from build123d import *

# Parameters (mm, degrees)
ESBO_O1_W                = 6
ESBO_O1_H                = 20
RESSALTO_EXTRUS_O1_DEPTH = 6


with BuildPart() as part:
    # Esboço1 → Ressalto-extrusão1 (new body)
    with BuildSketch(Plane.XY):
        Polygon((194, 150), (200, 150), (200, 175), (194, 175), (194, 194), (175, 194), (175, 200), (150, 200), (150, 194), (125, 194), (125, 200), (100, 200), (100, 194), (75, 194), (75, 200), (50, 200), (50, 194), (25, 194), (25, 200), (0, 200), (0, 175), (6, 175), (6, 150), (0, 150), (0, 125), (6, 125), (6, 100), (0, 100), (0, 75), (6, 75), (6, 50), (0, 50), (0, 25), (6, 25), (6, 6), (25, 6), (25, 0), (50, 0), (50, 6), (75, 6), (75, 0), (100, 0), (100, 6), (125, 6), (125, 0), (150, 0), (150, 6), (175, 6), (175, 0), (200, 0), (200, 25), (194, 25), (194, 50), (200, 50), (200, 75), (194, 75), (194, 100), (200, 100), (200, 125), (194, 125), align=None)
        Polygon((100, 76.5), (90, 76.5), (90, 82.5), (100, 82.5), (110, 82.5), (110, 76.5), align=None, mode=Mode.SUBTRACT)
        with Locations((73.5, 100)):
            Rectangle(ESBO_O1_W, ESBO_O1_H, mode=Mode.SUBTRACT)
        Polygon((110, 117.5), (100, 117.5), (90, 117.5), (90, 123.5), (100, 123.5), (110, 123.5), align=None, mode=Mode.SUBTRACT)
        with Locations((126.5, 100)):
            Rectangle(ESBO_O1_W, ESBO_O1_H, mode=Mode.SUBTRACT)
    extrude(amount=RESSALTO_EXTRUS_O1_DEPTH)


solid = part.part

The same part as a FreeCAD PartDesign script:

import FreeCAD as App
import Part
import Sketcher
Q = App.Units.Quantity

doc = App.newDocument("Part")
body = doc.addObject("PartDesign::Body", "Body")

sketch1 = body.newObject("Sketcher::SketchObject", "Sketch")
sketch1.AttachmentSupport = (doc.getObject("XY_Plane"), [""])
sketch1.MapMode = "FlatFace"
sketch1.addGeometry([
    Part.LineSegment(App.Vector(194, 150, 0), App.Vector(200, 150, 0)),
    Part.LineSegment(App.Vector(200, 150, 0), App.Vector(200, 175, 0)),
    Part.LineSegment(App.Vector(200, 175, 0), App.Vector(194, 175, 0)),
    Part.LineSegment(App.Vector(194, 175, 0), App.Vector(194, 194, 0)),
    Part.LineSegment(App.Vector(194, 194, 0), App.Vector(175, 194, 0)),
    Part.LineSegment(App.Vector(175, 194, 0), App.Vector(175, 200, 0)),
    Part.LineSegment(App.Vector(175, 200, 0), App.Vector(150, 200, 0)),
    Part.LineSegment(App.Vector(150, 200, 0), App.Vector(150, 194, 0)),
    Part.LineSegment(App.Vector(150, 194, 0), App.Vector(125, 194, 0)),
    Part.LineSegment(App.Vector(125, 194, 0), App.Vector(125, 200, 0)),
    Part.LineSegment(App.Vector(125, 200, 0), App.Vector(100, 200, 0)),
    Part.LineSegment(App.Vector(100, 200, 0), App.Vector(100, 194, 0)),
    Part.LineSegment(App.Vector(100, 194, 0), App.Vector(75, 194, 0)),
    Part.LineSegment(App.Vector(75, 194, 0), App.Vector(75, 200, 0)),
    Part.LineSegment(App.Vector(75, 200, 0), App.Vector(50, 200, 0)),
    Part.LineSegment(App.Vector(50, 200, 0), App.Vector(50, 194, 0)),
    Part.LineSegment(App.Vector(50, 194, 0), App.Vector(25, 194, 0)),
    Part.LineSegment(App.Vector(25, 194, 0), App.Vector(25, 200, 0)),
    Part.LineSegment(App.Vector(25, 200, 0), App.Vector(0, 200, 0)),
    Part.LineSegment(App.Vector(0, 200, 0), App.Vector(0, 175, 0)),
    Part.LineSegment(App.Vector(0, 175, 0), App.Vector(6, 175, 0)),
    Part.LineSegment(App.Vector(6, 175, 0), App.Vector(6, 150, 0)),
    Part.LineSegment(App.Vector(6, 150, 0), App.Vector(0, 150, 0)),
    Part.LineSegment(App.Vector(0, 150, 0), App.Vector(0, 125, 0)),
    Part.LineSegment(App.Vector(0, 125, 0), App.Vector(6, 125, 0)),
    Part.LineSegment(App.Vector(6, 125, 0), App.Vector(6, 100, 0)),
    Part.LineSegment(App.Vector(6, 100, 0), App.Vector(0, 100, 0)),
    Part.LineSegment(App.Vector(0, 100, 0), App.Vector(0, 75, 0)),
    Part.LineSegment(App.Vector(0, 75, 0), App.Vector(6, 75, 0)),
    Part.LineSegment(App.Vector(6, 75, 0), App.Vector(6, 50, 0)),
    Part.LineSegment(App.Vector(6, 50, 0), App.Vector(0, 50, 0)),
    Part.LineSegment(App.Vector(0, 50, 0), App.Vector(0, 25, 0)),
    Part.LineSegment(App.Vector(0, 25, 0), App.Vector(6, 25, 0)),
    Part.LineSegment(App.Vector(6, 25, 0), App.Vector(6, 6, 0)),
    Part.LineSegment(App.Vector(6, 6, 0), App.Vector(25, 6, 0)),
    Part.LineSegment(App.Vector(25, 6, 0), App.Vector(25, 0, 0)),
    Part.LineSegment(App.Vector(25, 0, 0), App.Vector(50, 0, 0)),
    Part.LineSegment(App.Vector(50, 0, 0), App.Vector(50, 6, 0)),
    Part.LineSegment(App.Vector(50, 6, 0), App.Vector(75, 6, 0)),
    Part.LineSegment(App.Vector(75, 6, 0), App.Vector(75, 0, 0)),
    Part.LineSegment(App.Vector(75, 0, 0), App.Vector(100, 0, 0)),
    Part.LineSegment(App.Vector(100, 0, 0), App.Vector(100, 6, 0)),
    Part.LineSegment(App.Vector(100, 6, 0), App.Vector(125, 6, 0)),
    Part.LineSegment(App.Vector(125, 6, 0), App.Vector(125, 0, 0)),
    Part.LineSegment(App.Vector(125, 0, 0), App.Vector(150, 0, 0)),
    Part.LineSegment(App.Vector(150, 0, 0), App.Vector(150, 6, 0)),
    Part.LineSegment(App.Vector(150, 6, 0), App.Vector(175, 6, 0)),
    Part.LineSegment(App.Vector(175, 6, 0), App.Vector(175, 0, 0)),
    Part.LineSegment(App.Vector(175, 0, 0), App.Vector(200, 0, 0)),
    Part.LineSegment(App.Vector(200, 0, 0), App.Vector(200, 25, 0)),
    Part.LineSegment(App.Vector(200, 25, 0), App.Vector(194, 25, 0)),
    Part.LineSegment(App.Vector(194, 25, 0), App.Vector(194, 50, 0)),
    Part.LineSegment(App.Vector(194, 50, 0), App.Vector(200, 50, 0)),
    Part.LineSegment(App.Vector(200, 50, 0), App.Vector(200, 75, 0)),
    Part.LineSegment(App.Vector(200, 75, 0), App.Vector(194, 75, 0)),
    Part.LineSegment(App.Vector(194, 75, 0), App.Vector(194, 100, 0)),
    Part.LineSegment(App.Vector(194, 100, 0), App.Vector(200, 100, 0)),
    Part.LineSegment(App.Vector(200, 100, 0), App.Vector(200, 125, 0)),
    Part.LineSegment(App.Vector(200, 125, 0), App.Vector(194, 125, 0)),
    Part.LineSegment(App.Vector(194, 125, 0), App.Vector(194, 150, 0)),
    Part.LineSegment(App.Vector(110, 76, 0), App.Vector(90, 76, 0)),
    Part.LineSegment(App.Vector(90, 76, 0), App.Vector(90, 82, 0)),
    Part.LineSegment(App.Vector(90, 82, 0), App.Vector(110, 82, 0)),
    Part.LineSegment(App.Vector(110, 82, 0), App.Vector(110, 76, 0)),
    Part.LineSegment(App.Vector(76, 90, 0), App.Vector(70, 90, 0)),
    Part.LineSegment(App.Vector(70, 90, 0), App.Vector(70, 110, 0)),
    Part.LineSegment(App.Vector(70, 110, 0), App.Vector(76, 110, 0)),
    Part.LineSegment(App.Vector(76, 110, 0), App.Vector(76, 90, 0)),
    Part.LineSegment(App.Vector(130, 90, 0), App.Vector(124, 90, 0)),
    Part.LineSegment(App.Vector(124, 90, 0), App.Vector(124, 110, 0)),
    Part.LineSegment(App.Vector(124, 110, 0), App.Vector(130, 110, 0)),
    Part.LineSegment(App.Vector(130, 110, 0), App.Vector(130, 90, 0)),
    Part.LineSegment(App.Vector(110, 124, 0), App.Vector(110, 118, 0)),
    Part.LineSegment(App.Vector(110, 118, 0), App.Vector(90, 118, 0)),
    Part.LineSegment(App.Vector(90, 118, 0), App.Vector(90, 124, 0)),
    Part.LineSegment(App.Vector(90, 124, 0), App.Vector(110, 124, 0)),
], False)
sketch1.addConstraint([
    Sketcher.Constraint("Coincident", 0, 2, 1, 1),
    Sketcher.Constraint("Coincident", 1, 2, 2, 1),
    Sketcher.Constraint("Coincident", 2, 2, 3, 1),
    Sketcher.Constraint("Coincident", 3, 2, 4, 1),
    Sketcher.Constraint("Coincident", 4, 2, 5, 1),
    Sketcher.Constraint("Coincident", 5, 2, 6, 1),
    Sketcher.Constraint("Coincident", 6, 2, 7, 1),
    Sketcher.Constraint("Coincident", 7, 2, 8, 1),
    Sketcher.Constraint("Coincident", 8, 2, 9, 1),
    Sketcher.Constraint("Coincident", 9, 2, 10, 1),
    Sketcher.Constraint("Coincident", 10, 2, 11, 1),
    Sketcher.Constraint("Coincident", 11, 2, 12, 1),
    Sketcher.Constraint("Coincident", 12, 2, 13, 1),
    Sketcher.Constraint("Coincident", 13, 2, 14, 1),
    Sketcher.Constraint("Coincident", 14, 2, 15, 1),
    Sketcher.Constraint("Coincident", 15, 2, 16, 1),
    Sketcher.Constraint("Coincident", 16, 2, 17, 1),
    Sketcher.Constraint("Coincident", 17, 2, 18, 1),
    Sketcher.Constraint("Coincident", 18, 2, 19, 1),
    Sketcher.Constraint("Coincident", 19, 2, 20, 1),
    Sketcher.Constraint("Coincident", 20, 2, 21, 1),
    Sketcher.Constraint("Coincident", 21, 2, 22, 1),
    Sketcher.Constraint("Coincident", 22, 2, 23, 1),
    Sketcher.Constraint("Coincident", 23, 2, 24, 1),
    Sketcher.Constraint("Coincident", 24, 2, 25, 1),
    Sketcher.Constraint("Coincident", 25, 2, 26, 1),
    Sketcher.Constraint("Coincident", 26, 2, 27, 1),
    Sketcher.Constraint("Coincident", 27, 2, 28, 1),
    Sketcher.Constraint("Coincident", 28, 2, 29, 1),
    Sketcher.Constraint("Coincident", 29, 2, 30, 1),
    Sketcher.Constraint("Coincident", 30, 2, 31, 1),
    Sketcher.Constraint("Coincident", 31, 2, 32, 1),
    Sketcher.Constraint("Coincident", 32, 2, 33, 1),
    Sketcher.Constraint("Coincident", 33, 2, 34, 1),
    Sketcher.Constraint("Coincident", 34, 2, 35, 1),
    Sketcher.Constraint("Coincident", 35, 2, 36, 1),
    Sketcher.Constraint("Coincident", 36, 2, 37, 1),
    Sketcher.Constraint("Coincident", 37, 2, 38, 1),
    Sketcher.Constraint("Coincident", 38, 2, 39, 1),
    Sketcher.Constraint("Coincident", 39, 2, 40, 1),
    Sketcher.Constraint("Coincident", 40, 2, 41, 1),
    Sketcher.Constraint("Coincident", 41, 2, 42, 1),
    Sketcher.Constraint("Coincident", 42, 2, 43, 1),
    Sketcher.Constraint("Coincident", 43, 2, 44, 1),
    Sketcher.Constraint("Coincident", 44, 2, 45, 1),
    Sketcher.Constraint("Coincident", 45, 2, 46, 1),
    Sketcher.Constraint("Coincident", 46, 2, 47, 1),
    Sketcher.Constraint("Coincident", 47, 2, 48, 1),
    Sketcher.Constraint("Coincident", 48, 2, 49, 1),
    Sketcher.Constraint("Coincident", 49, 2, 50, 1),
    Sketcher.Constraint("Coincident", 50, 2, 51, 1),
    Sketcher.Constraint("Coincident", 51, 2, 52, 1),
    Sketcher.Constraint("Coincident", 52, 2, 53, 1),
    Sketcher.Constraint("Coincident", 53, 2, 54, 1),
    Sketcher.Constraint("Coincident", 54, 2, 55, 1),
    Sketcher.Constraint("Coincident", 55, 2, 56, 1),
    Sketcher.Constraint("Coincident", 56, 2, 57, 1),
    Sketcher.Constraint("Coincident", 57, 2, 58, 1),
    Sketcher.Constraint("Coincident", 58, 2, 59, 1),
    Sketcher.Constraint("Coincident", 59, 2, 0, 1),
    Sketcher.Constraint("Coincident", 60, 2, 61, 1),
    Sketcher.Constraint("Coincident", 61, 2, 62, 1),
    Sketcher.Constraint("Coincident", 62, 2, 63, 1),
    Sketcher.Constraint("Coincident", 63, 2, 60, 1),
    Sketcher.Constraint("Coincident", 64, 2, 65, 1),
    Sketcher.Constraint("Coincident", 65, 2, 66, 1),
    Sketcher.Constraint("Coincident", 66, 2, 67, 1),
    Sketcher.Constraint("Coincident", 67, 2, 64, 1),
    Sketcher.Constraint("Coincident", 68, 2, 69, 1),
    Sketcher.Constraint("Coincident", 69, 2, 70, 1),
    Sketcher.Constraint("Coincident", 70, 2, 71, 1),
    Sketcher.Constraint("Coincident", 71, 2, 68, 1),
    Sketcher.Constraint("Coincident", 72, 2, 73, 1),
    Sketcher.Constraint("Coincident", 73, 2, 74, 1),
    Sketcher.Constraint("Coincident", 74, 2, 75, 1),
    Sketcher.Constraint("Coincident", 75, 2, 72, 1),
    Sketcher.Constraint("Horizontal", 0),
    Sketcher.Constraint("Vertical", 1),
    Sketcher.Constraint("Horizontal", 2),
    Sketcher.Constraint("Vertical", 3),
    Sketcher.Constraint("Horizontal", 4),
    Sketcher.Constraint("Vertical", 5),
    Sketcher.Constraint("Horizontal", 6),
    Sketcher.Constraint("Vertical", 7),
    Sketcher.Constraint("Horizontal", 8),
    Sketcher.Constraint("Vertical", 9),
    Sketcher.Constraint("Horizontal", 10),
    Sketcher.Constraint("Vertical", 11),
    Sketcher.Constraint("Horizontal", 12),
    Sketcher.Constraint("Vertical", 13),
    Sketcher.Constraint("Horizontal", 14),
    Sketcher.Constraint("Vertical", 15),
    Sketcher.Constraint("Horizontal", 16),
    Sketcher.Constraint("Vertical", 17),
    Sketcher.Constraint("Horizontal", 18),
    Sketcher.Constraint("Vertical", 19),
    Sketcher.Constraint("Horizontal", 20),
    Sketcher.Constraint("Vertical", 21),
    Sketcher.Constraint("Horizontal", 22),
    Sketcher.Constraint("Vertical", 23),
    Sketcher.Constraint("Horizontal", 24),
    Sketcher.Constraint("Vertical", 25),
    Sketcher.Constraint("Horizontal", 26),
    Sketcher.Constraint("Vertical", 27),
    Sketcher.Constraint("Horizontal", 28),
    Sketcher.Constraint("Vertical", 29),
    Sketcher.Constraint("Horizontal", 30),
    Sketcher.Constraint("Vertical", 31),
    Sketcher.Constraint("Horizontal", 32),
    Sketcher.Constraint("Vertical", 33),
    Sketcher.Constraint("Horizontal", 34),
    Sketcher.Constraint("Vertical", 35),
    Sketcher.Constraint("Horizontal", 36),
    Sketcher.Constraint("Vertical", 37),
    Sketcher.Constraint("Horizontal", 38),
    Sketcher.Constraint("Vertical", 39),
    Sketcher.Constraint("Horizontal", 40),
    Sketcher.Constraint("Vertical", 41),
    Sketcher.Constraint("Horizontal", 42),
    Sketcher.Constraint("Vertical", 43),
    Sketcher.Constraint("Horizontal", 44),
    Sketcher.Constraint("Vertical", 45),
    Sketcher.Constraint("Horizontal", 46),
    Sketcher.Constraint("Vertical", 47),
    Sketcher.Constraint("Horizontal", 48),
    Sketcher.Constraint("Vertical", 49),
    Sketcher.Constraint("Horizontal", 50),
    Sketcher.Constraint("Vertical", 51),
    Sketcher.Constraint("Horizontal", 52),
    Sketcher.Constraint("Vertical", 53),
    Sketcher.Constraint("Horizontal", 54),
    Sketcher.Constraint("Vertical", 55),
    Sketcher.Constraint("Horizontal", 56),
    Sketcher.Constraint("Vertical", 57),
    Sketcher.Constraint("Horizontal", 58),
    Sketcher.Constraint("Vertical", 59),
    Sketcher.Constraint("Horizontal", 60),
    Sketcher.Constraint("Vertical", 61),
    Sketcher.Constraint("Horizontal", 62),
    Sketcher.Constraint("Vertical", 63),
    Sketcher.Constraint("Horizontal", 64),
    Sketcher.Constraint("Vertical", 65),
    Sketcher.Constraint("Horizontal", 66),
    Sketcher.Constraint("Vertical", 67),
    Sketcher.Constraint("Horizontal", 68),
    Sketcher.Constraint("Vertical", 69),
    Sketcher.Constraint("Horizontal", 70),
    Sketcher.Constraint("Vertical", 71),
    Sketcher.Constraint("Vertical", 72),
    Sketcher.Constraint("Horizontal", 73),
    Sketcher.Constraint("Vertical", 74),
    Sketcher.Constraint("Horizontal", 75),
    Sketcher.Constraint("PointOnObject", 18, 2, -2),
    Sketcher.Constraint("PointOnObject", 22, 2, -2),
    Sketcher.Constraint("PointOnObject", 26, 2, -2),
    Sketcher.Constraint("PointOnObject", 30, 2, -2),
    Sketcher.Constraint("PointOnObject", 35, 2, -1),
    Sketcher.Constraint("PointOnObject", 39, 2, -1),
    Sketcher.Constraint("PointOnObject", 43, 2, -1),
    Sketcher.Constraint("PointOnObject", 47, 2, -1),
    Sketcher.Constraint("Horizontal", 4, 2, 7, 2),
    Sketcher.Constraint("Horizontal", 6, 2, 9, 2),
    Sketcher.Constraint("Horizontal", 8, 2, 11, 2),
    Sketcher.Constraint("Horizontal", 10, 2, 13, 2),
    Sketcher.Constraint("Horizontal", 12, 2, 15, 2),
    Sketcher.Constraint("Horizontal", 14, 2, 17, 2),
    Sketcher.Constraint("Horizontal", 2, 2, 19, 2),
    Sketcher.Constraint("Horizontal", 0, 2, 21, 2),
    Sketcher.Constraint("Horizontal", 34, 2, 37, 2),
    Sketcher.Constraint("Horizontal", 38, 2, 41, 2),
    Sketcher.Constraint("Horizontal", 42, 2, 45, 2),
    Sketcher.Constraint("Horizontal", 32, 2, 49, 2),
    Sketcher.Constraint("Horizontal", 30, 2, 51, 2),
    Sketcher.Constraint("Horizontal", 28, 2, 53, 2),
    Sketcher.Constraint("Horizontal", 26, 2, 55, 2),
    Sketcher.Constraint("Horizontal", 24, 2, 57, 2),
    Sketcher.Constraint("Horizontal", 67, 2, 68, 2),
    Sketcher.Constraint("Horizontal", 66, 2, 69, 2),
    Sketcher.Constraint("Vertical", 21, 2, 24, 2),
    Sketcher.Constraint("Vertical", 25, 2, 28, 2),
    Sketcher.Constraint("Vertical", 29, 2, 32, 2),
    Sketcher.Constraint("Vertical", 17, 2, 34, 2),
    Sketcher.Constraint("Vertical", 15, 2, 36, 2),
    Sketcher.Constraint("Vertical", 13, 2, 38, 2),
    Sketcher.Constraint("Vertical", 11, 2, 40, 2),
    Sketcher.Constraint("Vertical", 9, 2, 42, 2),
    Sketcher.Constraint("Vertical", 7, 2, 44, 2),
    Sketcher.Constraint("Vertical", 5, 2, 46, 2),
    Sketcher.Constraint("Vertical", 1, 2, 48, 2),
    Sketcher.Constraint("Vertical", 3, 2, 50, 2),
    Sketcher.Constraint("Vertical", 49, 2, 52, 2),
    Sketcher.Constraint("Vertical", 51, 2, 54, 2),
    Sketcher.Constraint("Vertical", 53, 2, 56, 2),
    Sketcher.Constraint("Vertical", 55, 2, 58, 2),
    Sketcher.Constraint("Vertical", 63, 2, 72, 2),
    Sketcher.Constraint("Vertical", 61, 2, 73, 2),
    Sketcher.Constraint("Equal", 6, 8),
    Sketcher.Constraint("Equal", 8, 10),
    Sketcher.Constraint("Equal", 10, 12),
    Sketcher.Constraint("Equal", 12, 14),
    Sketcher.Constraint("Equal", 14, 16),
    Sketcher.Constraint("Equal", 16, 18),
    Sketcher.Constraint("Equal", 2, 20),
    Sketcher.Constraint("Equal", 4, 34),
    Sketcher.Constraint("Equal", 58, 64),
    Sketcher.Constraint("Equal", 66, 68),
    Sketcher.Constraint("Equal", 48, 1),
    Sketcher.Constraint("Equal", 34, 3),
    Sketcher.Constraint("Equal", 70, 5),
    Sketcher.Constraint("Equal", 21, 23),
    Sketcher.Constraint("Equal", 23, 25),
    Sketcher.Constraint("Equal", 25, 27),
    Sketcher.Constraint("Equal", 27, 29),
    Sketcher.Constraint("Equal", 29, 31),
    Sketcher.Constraint("Equal", 3, 33),
    Sketcher.Constraint("Equal", 17, 35),
    Sketcher.Constraint("Equal", 47, 61),
    Sketcher.Constraint("Equal", 75, 65),
    Sketcher.Constraint("Equal", 63, 72),
    Sketcher.Constraint("DistanceX", 0, 1, 0, 2, Q("6 mm")),
    Sketcher.Constraint("DistanceX", 4, 2, 4, 1, Q("19 mm")),
    Sketcher.Constraint("DistanceX", 60, 2, 60, 1, Q("20 mm")),
    Sketcher.Constraint("DistanceX", -1, 1, 60, 2, Q("90 mm")),
    Sketcher.Constraint("DistanceY", -1, 1, 64, 2, Q("90 mm")),
    Sketcher.Constraint("DistanceY", -1, 1, 60, 2, Q("76.5 mm")),
    Sketcher.Constraint("DistanceX", -1, 1, 64, 2, Q("70.5 mm")),
    Sketcher.Constraint("DistanceX", -1, 1, 68, 2, Q("123.5 mm")),
    Sketcher.Constraint("DistanceY", -1, 1, 72, 2, Q("117.5 mm")),
])
pad1 = body.newObject("PartDesign::Pad", "Pad")
pad1.Profile = sketch1
pad1.Length = 6

doc.recompute()
